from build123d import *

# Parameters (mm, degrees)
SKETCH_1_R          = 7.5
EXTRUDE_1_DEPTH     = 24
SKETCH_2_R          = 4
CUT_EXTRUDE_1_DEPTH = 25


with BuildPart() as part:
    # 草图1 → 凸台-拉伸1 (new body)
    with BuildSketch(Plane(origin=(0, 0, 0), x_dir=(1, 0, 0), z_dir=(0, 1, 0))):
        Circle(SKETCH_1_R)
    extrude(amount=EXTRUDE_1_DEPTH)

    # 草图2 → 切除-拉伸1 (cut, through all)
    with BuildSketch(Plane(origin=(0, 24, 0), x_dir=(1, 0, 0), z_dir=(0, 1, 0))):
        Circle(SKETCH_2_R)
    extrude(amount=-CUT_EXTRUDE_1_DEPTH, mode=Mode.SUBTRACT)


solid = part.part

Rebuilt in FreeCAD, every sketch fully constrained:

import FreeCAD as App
import Part
import Sketcher

V = App.Vector
Q = App.Units.Quantity

doc = App.newDocument("Part")
body = doc.addObject("PartDesign::Body", "Body")

# Sketch on XZ plane
sketch1 = body.newObject("Sketcher::SketchObject", "Sketch")
sketch1.AttachmentSupport = (doc.getObject("XZ_Plane"), [""])
sketch1.MapMode = "FlatFace"
sketch1.addGeometry(Part.Circle(V(0, 0, 0), V(0, 0, 1), 8), False)
sketch1.addConstraint(Sketcher.Constraint("Coincident", 0, 3, -1, 1))
sketch1.addConstraint(Sketcher.Constraint("Diameter", 0, Q("15 mm")))
pad1 = body.newObject("PartDesign::Pad", "Pad")
pad1.Profile = sketch1
pad1.Length = 24
pad1.Reversed = True

# Sketch on XZ plane
sketch2 = body.newObject("Sketcher::SketchObject", "Sketch001")
sketch2.AttachmentSupport = (doc.getObject("XZ_Plane"), [""])
sketch2.MapMode = "FlatFace"
sketch2.AttachmentOffset = App.Placement(V(0, 0, -24), App.Rotation())
sketch2.addGeometry(Part.Circle(V(0, 0, 0), V(0, 0, 1), 4), False)
sketch2.addConstraint(Sketcher.Constraint("Coincident", 0, 3, -1, 1))
sketch2.addConstraint(Sketcher.Constraint("Diameter", 0, Q("8 mm")))
pocket1 = body.newObject("PartDesign::Pocket", "Pocket")
pocket1.Profile = sketch2
pocket1.Type = "ThroughAll"
pocket1.Reversed = True

doc.recompute()
